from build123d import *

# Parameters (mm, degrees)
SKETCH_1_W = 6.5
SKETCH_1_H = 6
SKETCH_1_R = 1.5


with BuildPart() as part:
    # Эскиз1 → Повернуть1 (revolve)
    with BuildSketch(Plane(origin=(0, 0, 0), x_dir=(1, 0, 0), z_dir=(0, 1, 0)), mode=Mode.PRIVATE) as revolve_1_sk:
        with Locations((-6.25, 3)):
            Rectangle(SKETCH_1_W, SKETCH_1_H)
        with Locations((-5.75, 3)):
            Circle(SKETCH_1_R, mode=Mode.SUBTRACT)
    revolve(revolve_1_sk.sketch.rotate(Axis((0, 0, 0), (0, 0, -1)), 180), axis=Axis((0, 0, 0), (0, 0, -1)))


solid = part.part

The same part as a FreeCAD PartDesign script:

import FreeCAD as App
import Part
import Sketcher

V = App.Vector
Q = App.Units.Quantity

doc = App.newDocument("Part")
body = doc.addObject("PartDesign::Body", "Body")

sketch1 = body.newObject("Sketcher::SketchObject", "Sketch")
sketch1.AttachmentSupport = (doc.getObject("XZ_Plane"), [""])
sketch1.MapMode = "FlatFace"
sketch1.addGeometry(Part.LineSegment(V(-9.5, -6, 0), V(-9.5, 0, 0)), False)
sketch1.addGeometry(Part.LineSegment(V(-9.5, 0, 0), V(-3, 0, 0)), False)
sketch1.addGeometry(Part.LineSegment(V(-3, 0, 0), V(-3, -6, 0)), False)
sketch1.addGeometry(Part.LineSegment(V(-3, -6, 0), V(-9.5, -6, 0)), False)
sketch1.addGeometry(Part.Circle(V(-5.8, -3, 0), V(0, 0, 1), 1.5), False)
sketch1.addConstraint(Sketcher.Constraint("Coincident", 0, 2, 1, 1))
sketch1.addConstraint(Sketcher.Constraint("Coincident", 1, 2, 2, 1))
sketch1.addConstraint(Sketcher.Constraint("Coincident", 2, 2, 3, 1))
sketch1.addConstraint(Sketcher.Constraint("Coincident", 3, 2, 0, 1))
sketch1.addConstraint(Sketcher.Constraint("Vertical", 0))
sketch1.addConstraint(Sketcher.Constraint("Horizontal", 1))
sketch1.addConstraint(Sketcher.Constraint("Vertical", 2))
sketch1.addConstraint(Sketcher.Constraint("Horizontal", 3))
sketch1.addConstraint(Sketcher.Constraint("PointOnObject", 0, 2, -1))
sketch1.addConstraint(Sketcher.Constraint("Diameter", 4, Q("3 mm")))
sketch1.addConstraint(Sketcher.Constraint("DistanceY", 0, 1, 0, 2, Q("6 mm")))
sketch1.addConstraint(Sketcher.Constraint("DistanceX", 1, 1, 1, 2, Q("6.5 mm")))
sketch1.addConstraint(Sketcher.Constraint("DistanceY", 4, 3, -1, 1, Q("3 mm")))
sketch1.addConstraint(Sketcher.Constraint("DistanceX", 1, 2, -1, 1, Q("3 mm")))
sketch1.addConstraint(Sketcher.Constraint("DistanceX", 4, 3, -1, 1, Q("5.75 mm")))
revolution = body.newObject("PartDesign::Revolution", "Revolution")
revolution.Profile = sketch1
revolution.ReferenceAxis = (sketch1, ["V_Axis"])
revolution.Angle = 360

doc.recompute()
